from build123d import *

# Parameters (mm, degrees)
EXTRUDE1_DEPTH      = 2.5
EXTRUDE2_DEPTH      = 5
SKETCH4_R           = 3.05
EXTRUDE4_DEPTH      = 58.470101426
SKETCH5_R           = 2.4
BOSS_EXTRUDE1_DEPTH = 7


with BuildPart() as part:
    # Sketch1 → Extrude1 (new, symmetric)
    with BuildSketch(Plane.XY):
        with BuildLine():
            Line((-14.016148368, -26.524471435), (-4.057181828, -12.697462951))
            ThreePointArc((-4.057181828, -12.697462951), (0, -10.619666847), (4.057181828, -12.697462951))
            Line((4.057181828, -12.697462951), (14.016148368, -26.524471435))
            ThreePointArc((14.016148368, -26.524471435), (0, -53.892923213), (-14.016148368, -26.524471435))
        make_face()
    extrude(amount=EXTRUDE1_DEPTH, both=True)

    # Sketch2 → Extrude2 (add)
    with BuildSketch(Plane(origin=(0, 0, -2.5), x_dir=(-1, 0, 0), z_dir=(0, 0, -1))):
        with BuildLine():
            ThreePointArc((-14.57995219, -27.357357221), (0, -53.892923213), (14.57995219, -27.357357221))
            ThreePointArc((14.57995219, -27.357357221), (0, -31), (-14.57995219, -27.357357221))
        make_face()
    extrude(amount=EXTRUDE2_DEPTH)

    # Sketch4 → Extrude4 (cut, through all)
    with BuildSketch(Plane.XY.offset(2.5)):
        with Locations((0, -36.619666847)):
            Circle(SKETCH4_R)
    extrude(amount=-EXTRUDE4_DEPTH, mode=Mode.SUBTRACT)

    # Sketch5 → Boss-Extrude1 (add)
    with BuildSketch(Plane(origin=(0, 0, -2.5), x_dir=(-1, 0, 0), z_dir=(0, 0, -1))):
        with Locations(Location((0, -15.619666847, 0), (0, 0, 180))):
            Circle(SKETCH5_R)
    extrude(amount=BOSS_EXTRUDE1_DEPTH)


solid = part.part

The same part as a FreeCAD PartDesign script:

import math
import FreeCAD as App
import Part
import Sketcher

doc = App.newDocument("Part")
body = doc.addObject("PartDesign::Body", "Body")

sketch1 = body.newObject("Sketcher::SketchObject", "Sketch")
sketch1.AttachmentSupport = (doc.getObject("XY_Plane"), [""])
sketch1.MapMode = "FlatFace"
sketch1.addGeometry(Part.LineSegment(App.Vector(-4.057182, -12.697463, 0), App.Vector(-14.016148, -26.524471, 0)), False)
sketch1.addGeometry(Part.ArcOfCircle(Part.Circle(App.Vector(0, -36.619667, 0), App.Vector(0, 0, 1), 17.273256), math.radians(144.236507), math.radians(395.763493)), False)
sketch1.addGeometry(Part.LineSegment(App.Vector(14.016148, -26.524471, 0), App.Vector(4.057182, -12.697463, 0)), False)
sketch1.addGeometry(Part.ArcOfCircle(Part.Circle(App.Vector(0, -15.619667, 0), App.Vector(0, 0, 1), 5), math.radians(35.763493), math.radians(144.236507)), False)
sketch1.addConstraint(Sketcher.Constraint("Tangent", 0, 2, 1, 1))
sketch1.addConstraint(Sketcher.Constraint("Tangent", 1, 2, 2, 1))
sketch1.addConstraint(Sketcher.Constraint("Tangent", 2, 2, 3, 1))
sketch1.addConstraint(Sketcher.Constraint("Tangent", 3, 2, 0, 1))
sketch1.addConstraint(Sketcher.Constraint("Symmetric", 0, 2, 1, 2, -2))
sketch1.addConstraint(Sketcher.Constraint("Radius", 3, 5.0))
sketch1.addConstraint(Sketcher.Constraint("DistanceY", 1, 3, 3, 3, 21.0))
sketch1.addConstraint(Sketcher.Constraint("Radius", 1, 17.273256))
sketch1.addConstraint(Sketcher.Constraint("DistanceY", 0, 2, -1, 1, 26.524471))
pad1 = body.newObject("PartDesign::Pad", "Pad")
pad1.Profile = sketch1
pad1.Length = 5
pad1.Midplane = True

sketch2 = body.newObject("Sketcher::SketchObject", "Sketch001")
sketch2.AttachmentSupport = (doc.getObject("XY_Plane"), [""])
sketch2.MapMode = "FlatFace"
sketch2.AttachmentOffset = App.Placement(App.Vector(0, 0, -2.5), App.Rotation())
sketch2.addGeometry(Part.ArcOfCircle(Part.Circle(App.Vector(0, -36.619667, 0), App.Vector(0, 0, 1), 17.273256), math.radians(147.57314), math.radians(392.42686)), False)
sketch2.addGeometry(Part.ArcOfCircle(Part.Circle(App.Vector(0, 0, 0), App.Vector(0, 0, 1), 31), math.radians(-118.055138), math.radians(-61.944862)), False)
sketch2.addConstraint(Sketcher.Constraint("Coincident", 0, 1, 1, 1))
sketch2.addConstraint(Sketcher.Constraint("Coincident", 1, 2, 0, 2))
sketch2.addConstraint(Sketcher.Constraint("Coincident", 1, 3, -1, 1))
sketch2.addConstraint(Sketcher.Constraint("PointOnObject", 0, 3, -2))
sketch2.addConstraint(Sketcher.Constraint("Radius", 1, 31.0))
sketch2.addConstraint(Sketcher.Constraint("Radius", 0, 17.273256))
sketch2.addConstraint(Sketcher.Constraint("DistanceY", 0, 3, 0, 1, 9.26231))
pad2 = body.newObject("PartDesign::Pad", "Pad001")
pad2.Profile = sketch2
pad2.Length = 5
pad2.Reversed = True

sketch3 = body.newObject("Sketcher::SketchObject", "Sketch002")
sketch3.AttachmentSupport = (doc.getObject("XY_Plane"), [""])
sketch3.MapMode = "FlatFace"
sketch3.AttachmentOffset = App.Placement(App.Vector(0, 0, 2.5), App.Rotation())
sketch3.addGeometry(Part.Circle(App.Vector(0, -36.619667, 0), App.Vector(0, 0, 1), 3.05), False)
sketch3.addConstraint(Sketcher.Constraint("PointOnObject", 0, 3, -2))
sketch3.addConstraint(Sketcher.Constraint("Diameter", 0, 6.1))
sketch3.addConstraint(Sketcher.Constraint("DistanceY", 0, 3, -1, 1, 36.619667))
pocket1 = body.newObject("PartDesign::Pocket", "Pocket")
pocket1.Profile = sketch3
pocket1.Type = "ThroughAll"

sketch4 = body.newObject("Sketcher::SketchObject", "Sketch003")
sketch4.AttachmentSupport = (doc.getObject("XY_Plane"), [""])
sketch4.MapMode = "FlatFace"
sketch4.AttachmentOffset = App.Placement(App.Vector(0, 0, -2.5), App.Rotation())
sketch4.addGeometry(Part.Circle(App.Vector(0, -15.619667, 0), App.Vector(0, 0, 1), 2.4), False)
sketch4.addConstraint(Sketcher.Constraint("PointOnObject", 0, 3, -2))
sketch4.addConstraint(Sketcher.Constraint("Diameter", 0, 4.8))
sketch4.addConstraint(Sketcher.Constraint("DistanceY", 0, 3, -1, 1, 15.619667))
pad3 = body.newObject("PartDesign::Pad", "Pad002")
pad3.Profile = sketch4
pad3.Length = 7
pad3.Reversed = True

doc.recompute()
